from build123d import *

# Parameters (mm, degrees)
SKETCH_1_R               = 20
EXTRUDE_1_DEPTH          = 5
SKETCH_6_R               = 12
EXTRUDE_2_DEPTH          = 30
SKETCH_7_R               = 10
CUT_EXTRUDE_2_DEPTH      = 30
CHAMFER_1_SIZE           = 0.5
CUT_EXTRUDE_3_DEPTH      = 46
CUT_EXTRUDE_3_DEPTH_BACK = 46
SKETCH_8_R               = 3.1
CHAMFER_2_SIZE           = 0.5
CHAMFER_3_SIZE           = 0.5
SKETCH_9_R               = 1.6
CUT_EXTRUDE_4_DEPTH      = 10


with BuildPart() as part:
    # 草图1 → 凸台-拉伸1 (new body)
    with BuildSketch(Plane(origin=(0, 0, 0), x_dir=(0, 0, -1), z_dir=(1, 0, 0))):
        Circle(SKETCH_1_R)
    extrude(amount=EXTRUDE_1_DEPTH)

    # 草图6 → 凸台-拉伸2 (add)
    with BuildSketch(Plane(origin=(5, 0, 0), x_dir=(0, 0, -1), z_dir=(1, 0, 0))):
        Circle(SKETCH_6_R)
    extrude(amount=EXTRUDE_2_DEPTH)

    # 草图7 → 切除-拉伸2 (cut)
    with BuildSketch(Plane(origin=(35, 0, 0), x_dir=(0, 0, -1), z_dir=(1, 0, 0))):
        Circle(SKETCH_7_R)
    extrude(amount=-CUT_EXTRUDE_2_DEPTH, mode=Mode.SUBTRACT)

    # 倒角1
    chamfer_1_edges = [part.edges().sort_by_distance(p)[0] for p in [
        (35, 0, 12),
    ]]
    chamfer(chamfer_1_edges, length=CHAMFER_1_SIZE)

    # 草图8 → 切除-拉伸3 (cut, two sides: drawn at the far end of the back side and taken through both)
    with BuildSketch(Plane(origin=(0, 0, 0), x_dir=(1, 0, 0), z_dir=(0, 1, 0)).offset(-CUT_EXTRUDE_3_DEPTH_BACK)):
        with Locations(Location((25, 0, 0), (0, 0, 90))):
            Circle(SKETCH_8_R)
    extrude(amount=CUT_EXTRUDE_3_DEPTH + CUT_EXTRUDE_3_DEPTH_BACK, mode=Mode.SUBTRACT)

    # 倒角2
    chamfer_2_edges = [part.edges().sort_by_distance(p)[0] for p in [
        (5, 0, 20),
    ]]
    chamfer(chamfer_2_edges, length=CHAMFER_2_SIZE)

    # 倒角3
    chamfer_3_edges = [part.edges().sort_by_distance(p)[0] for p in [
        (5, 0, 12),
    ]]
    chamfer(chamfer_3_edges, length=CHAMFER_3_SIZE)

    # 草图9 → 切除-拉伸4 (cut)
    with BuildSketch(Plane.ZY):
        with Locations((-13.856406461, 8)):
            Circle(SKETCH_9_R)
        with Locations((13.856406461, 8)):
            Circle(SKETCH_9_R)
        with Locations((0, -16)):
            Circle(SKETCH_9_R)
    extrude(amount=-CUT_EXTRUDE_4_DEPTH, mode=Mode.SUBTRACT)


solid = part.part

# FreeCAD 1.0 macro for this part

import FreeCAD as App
import Part
import Sketcher


def edges_at(feature, points):
    """Names of the edges that pass closest to the given points."""
    edges = feature.Shape.Edges
    near = lambda p: min(range(len(edges)), key=lambda i: edges[i].distToShape(Part.Vertex(*p))[0])
    return sorted({f"Edge{near(p) + 1}" for p in points})

doc = App.newDocument("Part")
params = doc.addObject("Spreadsheet::Sheet", "Params")
for row, (alias, value) in enumerate([
    ("sketch1_diameter", "40 mm"),
    ("pad1_length", "5 mm"),
    ("sketch2_diameter", "24 mm"),
    ("pad2_length", "30 mm"),
    ("sketch3_diameter", "20 mm"),
    ("pocket1_length", "30 mm"),
    ("chamfer_size", "0.5 mm"),
    ("sketch4_diameter", "6.2 mm"),
    ("chamfer2_size", "0.5 mm"),
    ("chamfer3_size", "0.5 mm"),
    ("sketch5_diameter", "3.2 mm"),
    ("pocket3_length", "10 mm"),
], start=1):
    params.set(f"A{row}", alias)
    params.set(f"B{row}", "=" + value)
    params.setAlias(f"B{row}", alias)

body = doc.addObject("PartDesign::Body", "Body")

sketch1 = body.newObject("Sketcher::SketchObject", "Sketch")
sketch1.AttachmentSupport = (doc.getObject("YZ_Plane"), [""])
sketch1.MapMode = "FlatFace"
sketch1.addGeometry(Part.Circle(App.Vector(0, 0, 0), App.Vector(0, 0, 1), 20), False)
sketch1.addConstraint([
    Sketcher.Constraint("Coincident", 0, 3, -1, 1),
    Sketcher.Constraint("Diameter", 0, 40.0),
])
sketch1.setExpression("Constraints[1]", "Params.sketch1_diameter")
pad1 = body.newObject("PartDesign::Pad", "Pad")
pad1.Profile = sketch1
pad1.setExpression("Length", "Params.pad1_length")

sketch2 = body.newObject("Sketcher::SketchObject", "Sketch001")
sketch2.AttachmentSupport = (doc.getObject("YZ_Plane"), [""])
sketch2.MapMode = "FlatFace"
sketch2.AttachmentOffset = App.Placement(App.Vector(0, 0, 5), App.Rotation())
sketch2.addGeometry(Part.Circle(App.Vector(0, 0, 0), App.Vector(0, 0, 1), 12), False)
sketch2.addConstraint([
    Sketcher.Constraint("Coincident", 0, 3, -1, 1),
    Sketcher.Constraint("Diameter", 0, 24.0),
])
sketch2.setExpression("Constraints[1]", "Params.sketch2_diameter")
pad2 = body.newObject("PartDesign::Pad", "Pad001")
pad2.Profile = sketch2
pad2.setExpression("Length", "Params.pad2_length")

sketch3 = body.newObject("Sketcher::SketchObject", "Sketch002")
sketch3.AttachmentSupport = (doc.getObject("YZ_Plane"), [""])
sketch3.MapMode = "FlatFace"
sketch3.AttachmentOffset = App.Placement(App.Vector(0, 0, 35), App.Rotation())
sketch3.addGeometry(Part.Circle(App.Vector(0, 0, 0), App.Vector(0, 0, 1), 10), False)
sketch3.addConstraint([
    Sketcher.Constraint("Coincident", 0, 3, -1, 1),
    Sketcher.Constraint("Diameter", 0, 20.0),
])
sketch3.setExpression("Constraints[1]", "Params.sketch3_diameter")
pocket1 = body.newObject("PartDesign::Pocket", "Pocket")
pocket1.Profile = sketch3
pocket1.setExpression("Length", "Params.pocket1_length")
doc.recompute()

chamfer = body.newObject("PartDesign::Chamfer", "Chamfer")
chamfer.Base = (pocket1, edges_at(pocket1, [(35, 0, 12)]))
chamfer.setExpression("Size", "Params.chamfer_size")

sketch4 = body.newObject("Sketcher::SketchObject", "Sketch003")
sketch4.AttachmentSupport = (doc.getObject("XZ_Plane"), [""])
sketch4.MapMode = "FlatFace"
sketch4.addGeometry(Part.Circle(App.Vector(25, 0, 0), App.Vector(0, 0, 1), 3.1), False)
sketch4.addConstraint([
    Sketcher.Constraint("PointOnObject", 0, 3, -1),
    Sketcher.Constraint("Diameter", 0, 6.2),
    Sketcher.Constraint("DistanceX", -1, 1, 0, 3, 25.0),
])
sketch4.setExpression("Constraints[1]", "Params.sketch4_diameter")
pocket2 = body.newObject("PartDesign::Pocket", "Pocket001")
pocket2.Profile = sketch4
pocket2.Type = "ThroughAll"
pocket2.Midplane = True
doc.recompute()

chamfer2 = body.newObject("PartDesign::Chamfer", "Chamfer001")
chamfer2.Base = (pocket2, edges_at(pocket2, [(5, 0, 20)]))
chamfer2.setExpression("Size", "Params.chamfer2_size")
doc.recompute()

chamfer3 = body.newObject("PartDesign::Chamfer", "Chamfer002")
chamfer3.Base = (chamfer2, edges_at(chamfer2, [(5, 0, 12)]))
chamfer3.setExpression("Size", "Params.chamfer3_size")

sketch5 = body.newObject("Sketcher::SketchObject", "Sketch004")
sketch5.AttachmentSupport = (doc.getObject("YZ_Plane"), [""])
sketch5.MapMode = "FlatFace"
sketch5.addGeometry([
    Part.Circle(App.Vector(8, -13.9, 0), App.Vector(0, 0, 1), 1.6),
    Part.Circle(App.Vector(8, 13.9, 0), App.Vector(0, 0, 1), 1.6),
    Part.Circle(App.Vector(-16, 0, 0), App.Vector(0, 0, 1), 1.6),
], False)
sketch5.addConstraint([
    Sketcher.Constraint("Equal", 0, 1),
    Sketcher.Constraint("Equal", 1, 2),
    Sketcher.Constraint("Symmetric", 0, 3, 1, 3, -1),
    Sketcher.Constraint("PointOnObject", 2, 3, -1),
    Sketcher.Constraint("Diameter", 0, 3.2),
    Sketcher.Constraint("DistanceX", -1, 1, 0, 3, 8.0),
    Sketcher.Constraint("DistanceX", 2, 3, -1, 1, 16.0),
    Sketcher.Constraint("DistanceY", 0, 3, -1, 1, 13.856406),
])
sketch5.setExpression("Constraints[4]", "Params.sketch5_diameter")
pocket3 = body.newObject("PartDesign::Pocket", "Pocket002")
pocket3.Profile = sketch5
pocket3.setExpression("Length", "Params.pocket3_length")
pocket3.Reversed = True

doc.recompute()
